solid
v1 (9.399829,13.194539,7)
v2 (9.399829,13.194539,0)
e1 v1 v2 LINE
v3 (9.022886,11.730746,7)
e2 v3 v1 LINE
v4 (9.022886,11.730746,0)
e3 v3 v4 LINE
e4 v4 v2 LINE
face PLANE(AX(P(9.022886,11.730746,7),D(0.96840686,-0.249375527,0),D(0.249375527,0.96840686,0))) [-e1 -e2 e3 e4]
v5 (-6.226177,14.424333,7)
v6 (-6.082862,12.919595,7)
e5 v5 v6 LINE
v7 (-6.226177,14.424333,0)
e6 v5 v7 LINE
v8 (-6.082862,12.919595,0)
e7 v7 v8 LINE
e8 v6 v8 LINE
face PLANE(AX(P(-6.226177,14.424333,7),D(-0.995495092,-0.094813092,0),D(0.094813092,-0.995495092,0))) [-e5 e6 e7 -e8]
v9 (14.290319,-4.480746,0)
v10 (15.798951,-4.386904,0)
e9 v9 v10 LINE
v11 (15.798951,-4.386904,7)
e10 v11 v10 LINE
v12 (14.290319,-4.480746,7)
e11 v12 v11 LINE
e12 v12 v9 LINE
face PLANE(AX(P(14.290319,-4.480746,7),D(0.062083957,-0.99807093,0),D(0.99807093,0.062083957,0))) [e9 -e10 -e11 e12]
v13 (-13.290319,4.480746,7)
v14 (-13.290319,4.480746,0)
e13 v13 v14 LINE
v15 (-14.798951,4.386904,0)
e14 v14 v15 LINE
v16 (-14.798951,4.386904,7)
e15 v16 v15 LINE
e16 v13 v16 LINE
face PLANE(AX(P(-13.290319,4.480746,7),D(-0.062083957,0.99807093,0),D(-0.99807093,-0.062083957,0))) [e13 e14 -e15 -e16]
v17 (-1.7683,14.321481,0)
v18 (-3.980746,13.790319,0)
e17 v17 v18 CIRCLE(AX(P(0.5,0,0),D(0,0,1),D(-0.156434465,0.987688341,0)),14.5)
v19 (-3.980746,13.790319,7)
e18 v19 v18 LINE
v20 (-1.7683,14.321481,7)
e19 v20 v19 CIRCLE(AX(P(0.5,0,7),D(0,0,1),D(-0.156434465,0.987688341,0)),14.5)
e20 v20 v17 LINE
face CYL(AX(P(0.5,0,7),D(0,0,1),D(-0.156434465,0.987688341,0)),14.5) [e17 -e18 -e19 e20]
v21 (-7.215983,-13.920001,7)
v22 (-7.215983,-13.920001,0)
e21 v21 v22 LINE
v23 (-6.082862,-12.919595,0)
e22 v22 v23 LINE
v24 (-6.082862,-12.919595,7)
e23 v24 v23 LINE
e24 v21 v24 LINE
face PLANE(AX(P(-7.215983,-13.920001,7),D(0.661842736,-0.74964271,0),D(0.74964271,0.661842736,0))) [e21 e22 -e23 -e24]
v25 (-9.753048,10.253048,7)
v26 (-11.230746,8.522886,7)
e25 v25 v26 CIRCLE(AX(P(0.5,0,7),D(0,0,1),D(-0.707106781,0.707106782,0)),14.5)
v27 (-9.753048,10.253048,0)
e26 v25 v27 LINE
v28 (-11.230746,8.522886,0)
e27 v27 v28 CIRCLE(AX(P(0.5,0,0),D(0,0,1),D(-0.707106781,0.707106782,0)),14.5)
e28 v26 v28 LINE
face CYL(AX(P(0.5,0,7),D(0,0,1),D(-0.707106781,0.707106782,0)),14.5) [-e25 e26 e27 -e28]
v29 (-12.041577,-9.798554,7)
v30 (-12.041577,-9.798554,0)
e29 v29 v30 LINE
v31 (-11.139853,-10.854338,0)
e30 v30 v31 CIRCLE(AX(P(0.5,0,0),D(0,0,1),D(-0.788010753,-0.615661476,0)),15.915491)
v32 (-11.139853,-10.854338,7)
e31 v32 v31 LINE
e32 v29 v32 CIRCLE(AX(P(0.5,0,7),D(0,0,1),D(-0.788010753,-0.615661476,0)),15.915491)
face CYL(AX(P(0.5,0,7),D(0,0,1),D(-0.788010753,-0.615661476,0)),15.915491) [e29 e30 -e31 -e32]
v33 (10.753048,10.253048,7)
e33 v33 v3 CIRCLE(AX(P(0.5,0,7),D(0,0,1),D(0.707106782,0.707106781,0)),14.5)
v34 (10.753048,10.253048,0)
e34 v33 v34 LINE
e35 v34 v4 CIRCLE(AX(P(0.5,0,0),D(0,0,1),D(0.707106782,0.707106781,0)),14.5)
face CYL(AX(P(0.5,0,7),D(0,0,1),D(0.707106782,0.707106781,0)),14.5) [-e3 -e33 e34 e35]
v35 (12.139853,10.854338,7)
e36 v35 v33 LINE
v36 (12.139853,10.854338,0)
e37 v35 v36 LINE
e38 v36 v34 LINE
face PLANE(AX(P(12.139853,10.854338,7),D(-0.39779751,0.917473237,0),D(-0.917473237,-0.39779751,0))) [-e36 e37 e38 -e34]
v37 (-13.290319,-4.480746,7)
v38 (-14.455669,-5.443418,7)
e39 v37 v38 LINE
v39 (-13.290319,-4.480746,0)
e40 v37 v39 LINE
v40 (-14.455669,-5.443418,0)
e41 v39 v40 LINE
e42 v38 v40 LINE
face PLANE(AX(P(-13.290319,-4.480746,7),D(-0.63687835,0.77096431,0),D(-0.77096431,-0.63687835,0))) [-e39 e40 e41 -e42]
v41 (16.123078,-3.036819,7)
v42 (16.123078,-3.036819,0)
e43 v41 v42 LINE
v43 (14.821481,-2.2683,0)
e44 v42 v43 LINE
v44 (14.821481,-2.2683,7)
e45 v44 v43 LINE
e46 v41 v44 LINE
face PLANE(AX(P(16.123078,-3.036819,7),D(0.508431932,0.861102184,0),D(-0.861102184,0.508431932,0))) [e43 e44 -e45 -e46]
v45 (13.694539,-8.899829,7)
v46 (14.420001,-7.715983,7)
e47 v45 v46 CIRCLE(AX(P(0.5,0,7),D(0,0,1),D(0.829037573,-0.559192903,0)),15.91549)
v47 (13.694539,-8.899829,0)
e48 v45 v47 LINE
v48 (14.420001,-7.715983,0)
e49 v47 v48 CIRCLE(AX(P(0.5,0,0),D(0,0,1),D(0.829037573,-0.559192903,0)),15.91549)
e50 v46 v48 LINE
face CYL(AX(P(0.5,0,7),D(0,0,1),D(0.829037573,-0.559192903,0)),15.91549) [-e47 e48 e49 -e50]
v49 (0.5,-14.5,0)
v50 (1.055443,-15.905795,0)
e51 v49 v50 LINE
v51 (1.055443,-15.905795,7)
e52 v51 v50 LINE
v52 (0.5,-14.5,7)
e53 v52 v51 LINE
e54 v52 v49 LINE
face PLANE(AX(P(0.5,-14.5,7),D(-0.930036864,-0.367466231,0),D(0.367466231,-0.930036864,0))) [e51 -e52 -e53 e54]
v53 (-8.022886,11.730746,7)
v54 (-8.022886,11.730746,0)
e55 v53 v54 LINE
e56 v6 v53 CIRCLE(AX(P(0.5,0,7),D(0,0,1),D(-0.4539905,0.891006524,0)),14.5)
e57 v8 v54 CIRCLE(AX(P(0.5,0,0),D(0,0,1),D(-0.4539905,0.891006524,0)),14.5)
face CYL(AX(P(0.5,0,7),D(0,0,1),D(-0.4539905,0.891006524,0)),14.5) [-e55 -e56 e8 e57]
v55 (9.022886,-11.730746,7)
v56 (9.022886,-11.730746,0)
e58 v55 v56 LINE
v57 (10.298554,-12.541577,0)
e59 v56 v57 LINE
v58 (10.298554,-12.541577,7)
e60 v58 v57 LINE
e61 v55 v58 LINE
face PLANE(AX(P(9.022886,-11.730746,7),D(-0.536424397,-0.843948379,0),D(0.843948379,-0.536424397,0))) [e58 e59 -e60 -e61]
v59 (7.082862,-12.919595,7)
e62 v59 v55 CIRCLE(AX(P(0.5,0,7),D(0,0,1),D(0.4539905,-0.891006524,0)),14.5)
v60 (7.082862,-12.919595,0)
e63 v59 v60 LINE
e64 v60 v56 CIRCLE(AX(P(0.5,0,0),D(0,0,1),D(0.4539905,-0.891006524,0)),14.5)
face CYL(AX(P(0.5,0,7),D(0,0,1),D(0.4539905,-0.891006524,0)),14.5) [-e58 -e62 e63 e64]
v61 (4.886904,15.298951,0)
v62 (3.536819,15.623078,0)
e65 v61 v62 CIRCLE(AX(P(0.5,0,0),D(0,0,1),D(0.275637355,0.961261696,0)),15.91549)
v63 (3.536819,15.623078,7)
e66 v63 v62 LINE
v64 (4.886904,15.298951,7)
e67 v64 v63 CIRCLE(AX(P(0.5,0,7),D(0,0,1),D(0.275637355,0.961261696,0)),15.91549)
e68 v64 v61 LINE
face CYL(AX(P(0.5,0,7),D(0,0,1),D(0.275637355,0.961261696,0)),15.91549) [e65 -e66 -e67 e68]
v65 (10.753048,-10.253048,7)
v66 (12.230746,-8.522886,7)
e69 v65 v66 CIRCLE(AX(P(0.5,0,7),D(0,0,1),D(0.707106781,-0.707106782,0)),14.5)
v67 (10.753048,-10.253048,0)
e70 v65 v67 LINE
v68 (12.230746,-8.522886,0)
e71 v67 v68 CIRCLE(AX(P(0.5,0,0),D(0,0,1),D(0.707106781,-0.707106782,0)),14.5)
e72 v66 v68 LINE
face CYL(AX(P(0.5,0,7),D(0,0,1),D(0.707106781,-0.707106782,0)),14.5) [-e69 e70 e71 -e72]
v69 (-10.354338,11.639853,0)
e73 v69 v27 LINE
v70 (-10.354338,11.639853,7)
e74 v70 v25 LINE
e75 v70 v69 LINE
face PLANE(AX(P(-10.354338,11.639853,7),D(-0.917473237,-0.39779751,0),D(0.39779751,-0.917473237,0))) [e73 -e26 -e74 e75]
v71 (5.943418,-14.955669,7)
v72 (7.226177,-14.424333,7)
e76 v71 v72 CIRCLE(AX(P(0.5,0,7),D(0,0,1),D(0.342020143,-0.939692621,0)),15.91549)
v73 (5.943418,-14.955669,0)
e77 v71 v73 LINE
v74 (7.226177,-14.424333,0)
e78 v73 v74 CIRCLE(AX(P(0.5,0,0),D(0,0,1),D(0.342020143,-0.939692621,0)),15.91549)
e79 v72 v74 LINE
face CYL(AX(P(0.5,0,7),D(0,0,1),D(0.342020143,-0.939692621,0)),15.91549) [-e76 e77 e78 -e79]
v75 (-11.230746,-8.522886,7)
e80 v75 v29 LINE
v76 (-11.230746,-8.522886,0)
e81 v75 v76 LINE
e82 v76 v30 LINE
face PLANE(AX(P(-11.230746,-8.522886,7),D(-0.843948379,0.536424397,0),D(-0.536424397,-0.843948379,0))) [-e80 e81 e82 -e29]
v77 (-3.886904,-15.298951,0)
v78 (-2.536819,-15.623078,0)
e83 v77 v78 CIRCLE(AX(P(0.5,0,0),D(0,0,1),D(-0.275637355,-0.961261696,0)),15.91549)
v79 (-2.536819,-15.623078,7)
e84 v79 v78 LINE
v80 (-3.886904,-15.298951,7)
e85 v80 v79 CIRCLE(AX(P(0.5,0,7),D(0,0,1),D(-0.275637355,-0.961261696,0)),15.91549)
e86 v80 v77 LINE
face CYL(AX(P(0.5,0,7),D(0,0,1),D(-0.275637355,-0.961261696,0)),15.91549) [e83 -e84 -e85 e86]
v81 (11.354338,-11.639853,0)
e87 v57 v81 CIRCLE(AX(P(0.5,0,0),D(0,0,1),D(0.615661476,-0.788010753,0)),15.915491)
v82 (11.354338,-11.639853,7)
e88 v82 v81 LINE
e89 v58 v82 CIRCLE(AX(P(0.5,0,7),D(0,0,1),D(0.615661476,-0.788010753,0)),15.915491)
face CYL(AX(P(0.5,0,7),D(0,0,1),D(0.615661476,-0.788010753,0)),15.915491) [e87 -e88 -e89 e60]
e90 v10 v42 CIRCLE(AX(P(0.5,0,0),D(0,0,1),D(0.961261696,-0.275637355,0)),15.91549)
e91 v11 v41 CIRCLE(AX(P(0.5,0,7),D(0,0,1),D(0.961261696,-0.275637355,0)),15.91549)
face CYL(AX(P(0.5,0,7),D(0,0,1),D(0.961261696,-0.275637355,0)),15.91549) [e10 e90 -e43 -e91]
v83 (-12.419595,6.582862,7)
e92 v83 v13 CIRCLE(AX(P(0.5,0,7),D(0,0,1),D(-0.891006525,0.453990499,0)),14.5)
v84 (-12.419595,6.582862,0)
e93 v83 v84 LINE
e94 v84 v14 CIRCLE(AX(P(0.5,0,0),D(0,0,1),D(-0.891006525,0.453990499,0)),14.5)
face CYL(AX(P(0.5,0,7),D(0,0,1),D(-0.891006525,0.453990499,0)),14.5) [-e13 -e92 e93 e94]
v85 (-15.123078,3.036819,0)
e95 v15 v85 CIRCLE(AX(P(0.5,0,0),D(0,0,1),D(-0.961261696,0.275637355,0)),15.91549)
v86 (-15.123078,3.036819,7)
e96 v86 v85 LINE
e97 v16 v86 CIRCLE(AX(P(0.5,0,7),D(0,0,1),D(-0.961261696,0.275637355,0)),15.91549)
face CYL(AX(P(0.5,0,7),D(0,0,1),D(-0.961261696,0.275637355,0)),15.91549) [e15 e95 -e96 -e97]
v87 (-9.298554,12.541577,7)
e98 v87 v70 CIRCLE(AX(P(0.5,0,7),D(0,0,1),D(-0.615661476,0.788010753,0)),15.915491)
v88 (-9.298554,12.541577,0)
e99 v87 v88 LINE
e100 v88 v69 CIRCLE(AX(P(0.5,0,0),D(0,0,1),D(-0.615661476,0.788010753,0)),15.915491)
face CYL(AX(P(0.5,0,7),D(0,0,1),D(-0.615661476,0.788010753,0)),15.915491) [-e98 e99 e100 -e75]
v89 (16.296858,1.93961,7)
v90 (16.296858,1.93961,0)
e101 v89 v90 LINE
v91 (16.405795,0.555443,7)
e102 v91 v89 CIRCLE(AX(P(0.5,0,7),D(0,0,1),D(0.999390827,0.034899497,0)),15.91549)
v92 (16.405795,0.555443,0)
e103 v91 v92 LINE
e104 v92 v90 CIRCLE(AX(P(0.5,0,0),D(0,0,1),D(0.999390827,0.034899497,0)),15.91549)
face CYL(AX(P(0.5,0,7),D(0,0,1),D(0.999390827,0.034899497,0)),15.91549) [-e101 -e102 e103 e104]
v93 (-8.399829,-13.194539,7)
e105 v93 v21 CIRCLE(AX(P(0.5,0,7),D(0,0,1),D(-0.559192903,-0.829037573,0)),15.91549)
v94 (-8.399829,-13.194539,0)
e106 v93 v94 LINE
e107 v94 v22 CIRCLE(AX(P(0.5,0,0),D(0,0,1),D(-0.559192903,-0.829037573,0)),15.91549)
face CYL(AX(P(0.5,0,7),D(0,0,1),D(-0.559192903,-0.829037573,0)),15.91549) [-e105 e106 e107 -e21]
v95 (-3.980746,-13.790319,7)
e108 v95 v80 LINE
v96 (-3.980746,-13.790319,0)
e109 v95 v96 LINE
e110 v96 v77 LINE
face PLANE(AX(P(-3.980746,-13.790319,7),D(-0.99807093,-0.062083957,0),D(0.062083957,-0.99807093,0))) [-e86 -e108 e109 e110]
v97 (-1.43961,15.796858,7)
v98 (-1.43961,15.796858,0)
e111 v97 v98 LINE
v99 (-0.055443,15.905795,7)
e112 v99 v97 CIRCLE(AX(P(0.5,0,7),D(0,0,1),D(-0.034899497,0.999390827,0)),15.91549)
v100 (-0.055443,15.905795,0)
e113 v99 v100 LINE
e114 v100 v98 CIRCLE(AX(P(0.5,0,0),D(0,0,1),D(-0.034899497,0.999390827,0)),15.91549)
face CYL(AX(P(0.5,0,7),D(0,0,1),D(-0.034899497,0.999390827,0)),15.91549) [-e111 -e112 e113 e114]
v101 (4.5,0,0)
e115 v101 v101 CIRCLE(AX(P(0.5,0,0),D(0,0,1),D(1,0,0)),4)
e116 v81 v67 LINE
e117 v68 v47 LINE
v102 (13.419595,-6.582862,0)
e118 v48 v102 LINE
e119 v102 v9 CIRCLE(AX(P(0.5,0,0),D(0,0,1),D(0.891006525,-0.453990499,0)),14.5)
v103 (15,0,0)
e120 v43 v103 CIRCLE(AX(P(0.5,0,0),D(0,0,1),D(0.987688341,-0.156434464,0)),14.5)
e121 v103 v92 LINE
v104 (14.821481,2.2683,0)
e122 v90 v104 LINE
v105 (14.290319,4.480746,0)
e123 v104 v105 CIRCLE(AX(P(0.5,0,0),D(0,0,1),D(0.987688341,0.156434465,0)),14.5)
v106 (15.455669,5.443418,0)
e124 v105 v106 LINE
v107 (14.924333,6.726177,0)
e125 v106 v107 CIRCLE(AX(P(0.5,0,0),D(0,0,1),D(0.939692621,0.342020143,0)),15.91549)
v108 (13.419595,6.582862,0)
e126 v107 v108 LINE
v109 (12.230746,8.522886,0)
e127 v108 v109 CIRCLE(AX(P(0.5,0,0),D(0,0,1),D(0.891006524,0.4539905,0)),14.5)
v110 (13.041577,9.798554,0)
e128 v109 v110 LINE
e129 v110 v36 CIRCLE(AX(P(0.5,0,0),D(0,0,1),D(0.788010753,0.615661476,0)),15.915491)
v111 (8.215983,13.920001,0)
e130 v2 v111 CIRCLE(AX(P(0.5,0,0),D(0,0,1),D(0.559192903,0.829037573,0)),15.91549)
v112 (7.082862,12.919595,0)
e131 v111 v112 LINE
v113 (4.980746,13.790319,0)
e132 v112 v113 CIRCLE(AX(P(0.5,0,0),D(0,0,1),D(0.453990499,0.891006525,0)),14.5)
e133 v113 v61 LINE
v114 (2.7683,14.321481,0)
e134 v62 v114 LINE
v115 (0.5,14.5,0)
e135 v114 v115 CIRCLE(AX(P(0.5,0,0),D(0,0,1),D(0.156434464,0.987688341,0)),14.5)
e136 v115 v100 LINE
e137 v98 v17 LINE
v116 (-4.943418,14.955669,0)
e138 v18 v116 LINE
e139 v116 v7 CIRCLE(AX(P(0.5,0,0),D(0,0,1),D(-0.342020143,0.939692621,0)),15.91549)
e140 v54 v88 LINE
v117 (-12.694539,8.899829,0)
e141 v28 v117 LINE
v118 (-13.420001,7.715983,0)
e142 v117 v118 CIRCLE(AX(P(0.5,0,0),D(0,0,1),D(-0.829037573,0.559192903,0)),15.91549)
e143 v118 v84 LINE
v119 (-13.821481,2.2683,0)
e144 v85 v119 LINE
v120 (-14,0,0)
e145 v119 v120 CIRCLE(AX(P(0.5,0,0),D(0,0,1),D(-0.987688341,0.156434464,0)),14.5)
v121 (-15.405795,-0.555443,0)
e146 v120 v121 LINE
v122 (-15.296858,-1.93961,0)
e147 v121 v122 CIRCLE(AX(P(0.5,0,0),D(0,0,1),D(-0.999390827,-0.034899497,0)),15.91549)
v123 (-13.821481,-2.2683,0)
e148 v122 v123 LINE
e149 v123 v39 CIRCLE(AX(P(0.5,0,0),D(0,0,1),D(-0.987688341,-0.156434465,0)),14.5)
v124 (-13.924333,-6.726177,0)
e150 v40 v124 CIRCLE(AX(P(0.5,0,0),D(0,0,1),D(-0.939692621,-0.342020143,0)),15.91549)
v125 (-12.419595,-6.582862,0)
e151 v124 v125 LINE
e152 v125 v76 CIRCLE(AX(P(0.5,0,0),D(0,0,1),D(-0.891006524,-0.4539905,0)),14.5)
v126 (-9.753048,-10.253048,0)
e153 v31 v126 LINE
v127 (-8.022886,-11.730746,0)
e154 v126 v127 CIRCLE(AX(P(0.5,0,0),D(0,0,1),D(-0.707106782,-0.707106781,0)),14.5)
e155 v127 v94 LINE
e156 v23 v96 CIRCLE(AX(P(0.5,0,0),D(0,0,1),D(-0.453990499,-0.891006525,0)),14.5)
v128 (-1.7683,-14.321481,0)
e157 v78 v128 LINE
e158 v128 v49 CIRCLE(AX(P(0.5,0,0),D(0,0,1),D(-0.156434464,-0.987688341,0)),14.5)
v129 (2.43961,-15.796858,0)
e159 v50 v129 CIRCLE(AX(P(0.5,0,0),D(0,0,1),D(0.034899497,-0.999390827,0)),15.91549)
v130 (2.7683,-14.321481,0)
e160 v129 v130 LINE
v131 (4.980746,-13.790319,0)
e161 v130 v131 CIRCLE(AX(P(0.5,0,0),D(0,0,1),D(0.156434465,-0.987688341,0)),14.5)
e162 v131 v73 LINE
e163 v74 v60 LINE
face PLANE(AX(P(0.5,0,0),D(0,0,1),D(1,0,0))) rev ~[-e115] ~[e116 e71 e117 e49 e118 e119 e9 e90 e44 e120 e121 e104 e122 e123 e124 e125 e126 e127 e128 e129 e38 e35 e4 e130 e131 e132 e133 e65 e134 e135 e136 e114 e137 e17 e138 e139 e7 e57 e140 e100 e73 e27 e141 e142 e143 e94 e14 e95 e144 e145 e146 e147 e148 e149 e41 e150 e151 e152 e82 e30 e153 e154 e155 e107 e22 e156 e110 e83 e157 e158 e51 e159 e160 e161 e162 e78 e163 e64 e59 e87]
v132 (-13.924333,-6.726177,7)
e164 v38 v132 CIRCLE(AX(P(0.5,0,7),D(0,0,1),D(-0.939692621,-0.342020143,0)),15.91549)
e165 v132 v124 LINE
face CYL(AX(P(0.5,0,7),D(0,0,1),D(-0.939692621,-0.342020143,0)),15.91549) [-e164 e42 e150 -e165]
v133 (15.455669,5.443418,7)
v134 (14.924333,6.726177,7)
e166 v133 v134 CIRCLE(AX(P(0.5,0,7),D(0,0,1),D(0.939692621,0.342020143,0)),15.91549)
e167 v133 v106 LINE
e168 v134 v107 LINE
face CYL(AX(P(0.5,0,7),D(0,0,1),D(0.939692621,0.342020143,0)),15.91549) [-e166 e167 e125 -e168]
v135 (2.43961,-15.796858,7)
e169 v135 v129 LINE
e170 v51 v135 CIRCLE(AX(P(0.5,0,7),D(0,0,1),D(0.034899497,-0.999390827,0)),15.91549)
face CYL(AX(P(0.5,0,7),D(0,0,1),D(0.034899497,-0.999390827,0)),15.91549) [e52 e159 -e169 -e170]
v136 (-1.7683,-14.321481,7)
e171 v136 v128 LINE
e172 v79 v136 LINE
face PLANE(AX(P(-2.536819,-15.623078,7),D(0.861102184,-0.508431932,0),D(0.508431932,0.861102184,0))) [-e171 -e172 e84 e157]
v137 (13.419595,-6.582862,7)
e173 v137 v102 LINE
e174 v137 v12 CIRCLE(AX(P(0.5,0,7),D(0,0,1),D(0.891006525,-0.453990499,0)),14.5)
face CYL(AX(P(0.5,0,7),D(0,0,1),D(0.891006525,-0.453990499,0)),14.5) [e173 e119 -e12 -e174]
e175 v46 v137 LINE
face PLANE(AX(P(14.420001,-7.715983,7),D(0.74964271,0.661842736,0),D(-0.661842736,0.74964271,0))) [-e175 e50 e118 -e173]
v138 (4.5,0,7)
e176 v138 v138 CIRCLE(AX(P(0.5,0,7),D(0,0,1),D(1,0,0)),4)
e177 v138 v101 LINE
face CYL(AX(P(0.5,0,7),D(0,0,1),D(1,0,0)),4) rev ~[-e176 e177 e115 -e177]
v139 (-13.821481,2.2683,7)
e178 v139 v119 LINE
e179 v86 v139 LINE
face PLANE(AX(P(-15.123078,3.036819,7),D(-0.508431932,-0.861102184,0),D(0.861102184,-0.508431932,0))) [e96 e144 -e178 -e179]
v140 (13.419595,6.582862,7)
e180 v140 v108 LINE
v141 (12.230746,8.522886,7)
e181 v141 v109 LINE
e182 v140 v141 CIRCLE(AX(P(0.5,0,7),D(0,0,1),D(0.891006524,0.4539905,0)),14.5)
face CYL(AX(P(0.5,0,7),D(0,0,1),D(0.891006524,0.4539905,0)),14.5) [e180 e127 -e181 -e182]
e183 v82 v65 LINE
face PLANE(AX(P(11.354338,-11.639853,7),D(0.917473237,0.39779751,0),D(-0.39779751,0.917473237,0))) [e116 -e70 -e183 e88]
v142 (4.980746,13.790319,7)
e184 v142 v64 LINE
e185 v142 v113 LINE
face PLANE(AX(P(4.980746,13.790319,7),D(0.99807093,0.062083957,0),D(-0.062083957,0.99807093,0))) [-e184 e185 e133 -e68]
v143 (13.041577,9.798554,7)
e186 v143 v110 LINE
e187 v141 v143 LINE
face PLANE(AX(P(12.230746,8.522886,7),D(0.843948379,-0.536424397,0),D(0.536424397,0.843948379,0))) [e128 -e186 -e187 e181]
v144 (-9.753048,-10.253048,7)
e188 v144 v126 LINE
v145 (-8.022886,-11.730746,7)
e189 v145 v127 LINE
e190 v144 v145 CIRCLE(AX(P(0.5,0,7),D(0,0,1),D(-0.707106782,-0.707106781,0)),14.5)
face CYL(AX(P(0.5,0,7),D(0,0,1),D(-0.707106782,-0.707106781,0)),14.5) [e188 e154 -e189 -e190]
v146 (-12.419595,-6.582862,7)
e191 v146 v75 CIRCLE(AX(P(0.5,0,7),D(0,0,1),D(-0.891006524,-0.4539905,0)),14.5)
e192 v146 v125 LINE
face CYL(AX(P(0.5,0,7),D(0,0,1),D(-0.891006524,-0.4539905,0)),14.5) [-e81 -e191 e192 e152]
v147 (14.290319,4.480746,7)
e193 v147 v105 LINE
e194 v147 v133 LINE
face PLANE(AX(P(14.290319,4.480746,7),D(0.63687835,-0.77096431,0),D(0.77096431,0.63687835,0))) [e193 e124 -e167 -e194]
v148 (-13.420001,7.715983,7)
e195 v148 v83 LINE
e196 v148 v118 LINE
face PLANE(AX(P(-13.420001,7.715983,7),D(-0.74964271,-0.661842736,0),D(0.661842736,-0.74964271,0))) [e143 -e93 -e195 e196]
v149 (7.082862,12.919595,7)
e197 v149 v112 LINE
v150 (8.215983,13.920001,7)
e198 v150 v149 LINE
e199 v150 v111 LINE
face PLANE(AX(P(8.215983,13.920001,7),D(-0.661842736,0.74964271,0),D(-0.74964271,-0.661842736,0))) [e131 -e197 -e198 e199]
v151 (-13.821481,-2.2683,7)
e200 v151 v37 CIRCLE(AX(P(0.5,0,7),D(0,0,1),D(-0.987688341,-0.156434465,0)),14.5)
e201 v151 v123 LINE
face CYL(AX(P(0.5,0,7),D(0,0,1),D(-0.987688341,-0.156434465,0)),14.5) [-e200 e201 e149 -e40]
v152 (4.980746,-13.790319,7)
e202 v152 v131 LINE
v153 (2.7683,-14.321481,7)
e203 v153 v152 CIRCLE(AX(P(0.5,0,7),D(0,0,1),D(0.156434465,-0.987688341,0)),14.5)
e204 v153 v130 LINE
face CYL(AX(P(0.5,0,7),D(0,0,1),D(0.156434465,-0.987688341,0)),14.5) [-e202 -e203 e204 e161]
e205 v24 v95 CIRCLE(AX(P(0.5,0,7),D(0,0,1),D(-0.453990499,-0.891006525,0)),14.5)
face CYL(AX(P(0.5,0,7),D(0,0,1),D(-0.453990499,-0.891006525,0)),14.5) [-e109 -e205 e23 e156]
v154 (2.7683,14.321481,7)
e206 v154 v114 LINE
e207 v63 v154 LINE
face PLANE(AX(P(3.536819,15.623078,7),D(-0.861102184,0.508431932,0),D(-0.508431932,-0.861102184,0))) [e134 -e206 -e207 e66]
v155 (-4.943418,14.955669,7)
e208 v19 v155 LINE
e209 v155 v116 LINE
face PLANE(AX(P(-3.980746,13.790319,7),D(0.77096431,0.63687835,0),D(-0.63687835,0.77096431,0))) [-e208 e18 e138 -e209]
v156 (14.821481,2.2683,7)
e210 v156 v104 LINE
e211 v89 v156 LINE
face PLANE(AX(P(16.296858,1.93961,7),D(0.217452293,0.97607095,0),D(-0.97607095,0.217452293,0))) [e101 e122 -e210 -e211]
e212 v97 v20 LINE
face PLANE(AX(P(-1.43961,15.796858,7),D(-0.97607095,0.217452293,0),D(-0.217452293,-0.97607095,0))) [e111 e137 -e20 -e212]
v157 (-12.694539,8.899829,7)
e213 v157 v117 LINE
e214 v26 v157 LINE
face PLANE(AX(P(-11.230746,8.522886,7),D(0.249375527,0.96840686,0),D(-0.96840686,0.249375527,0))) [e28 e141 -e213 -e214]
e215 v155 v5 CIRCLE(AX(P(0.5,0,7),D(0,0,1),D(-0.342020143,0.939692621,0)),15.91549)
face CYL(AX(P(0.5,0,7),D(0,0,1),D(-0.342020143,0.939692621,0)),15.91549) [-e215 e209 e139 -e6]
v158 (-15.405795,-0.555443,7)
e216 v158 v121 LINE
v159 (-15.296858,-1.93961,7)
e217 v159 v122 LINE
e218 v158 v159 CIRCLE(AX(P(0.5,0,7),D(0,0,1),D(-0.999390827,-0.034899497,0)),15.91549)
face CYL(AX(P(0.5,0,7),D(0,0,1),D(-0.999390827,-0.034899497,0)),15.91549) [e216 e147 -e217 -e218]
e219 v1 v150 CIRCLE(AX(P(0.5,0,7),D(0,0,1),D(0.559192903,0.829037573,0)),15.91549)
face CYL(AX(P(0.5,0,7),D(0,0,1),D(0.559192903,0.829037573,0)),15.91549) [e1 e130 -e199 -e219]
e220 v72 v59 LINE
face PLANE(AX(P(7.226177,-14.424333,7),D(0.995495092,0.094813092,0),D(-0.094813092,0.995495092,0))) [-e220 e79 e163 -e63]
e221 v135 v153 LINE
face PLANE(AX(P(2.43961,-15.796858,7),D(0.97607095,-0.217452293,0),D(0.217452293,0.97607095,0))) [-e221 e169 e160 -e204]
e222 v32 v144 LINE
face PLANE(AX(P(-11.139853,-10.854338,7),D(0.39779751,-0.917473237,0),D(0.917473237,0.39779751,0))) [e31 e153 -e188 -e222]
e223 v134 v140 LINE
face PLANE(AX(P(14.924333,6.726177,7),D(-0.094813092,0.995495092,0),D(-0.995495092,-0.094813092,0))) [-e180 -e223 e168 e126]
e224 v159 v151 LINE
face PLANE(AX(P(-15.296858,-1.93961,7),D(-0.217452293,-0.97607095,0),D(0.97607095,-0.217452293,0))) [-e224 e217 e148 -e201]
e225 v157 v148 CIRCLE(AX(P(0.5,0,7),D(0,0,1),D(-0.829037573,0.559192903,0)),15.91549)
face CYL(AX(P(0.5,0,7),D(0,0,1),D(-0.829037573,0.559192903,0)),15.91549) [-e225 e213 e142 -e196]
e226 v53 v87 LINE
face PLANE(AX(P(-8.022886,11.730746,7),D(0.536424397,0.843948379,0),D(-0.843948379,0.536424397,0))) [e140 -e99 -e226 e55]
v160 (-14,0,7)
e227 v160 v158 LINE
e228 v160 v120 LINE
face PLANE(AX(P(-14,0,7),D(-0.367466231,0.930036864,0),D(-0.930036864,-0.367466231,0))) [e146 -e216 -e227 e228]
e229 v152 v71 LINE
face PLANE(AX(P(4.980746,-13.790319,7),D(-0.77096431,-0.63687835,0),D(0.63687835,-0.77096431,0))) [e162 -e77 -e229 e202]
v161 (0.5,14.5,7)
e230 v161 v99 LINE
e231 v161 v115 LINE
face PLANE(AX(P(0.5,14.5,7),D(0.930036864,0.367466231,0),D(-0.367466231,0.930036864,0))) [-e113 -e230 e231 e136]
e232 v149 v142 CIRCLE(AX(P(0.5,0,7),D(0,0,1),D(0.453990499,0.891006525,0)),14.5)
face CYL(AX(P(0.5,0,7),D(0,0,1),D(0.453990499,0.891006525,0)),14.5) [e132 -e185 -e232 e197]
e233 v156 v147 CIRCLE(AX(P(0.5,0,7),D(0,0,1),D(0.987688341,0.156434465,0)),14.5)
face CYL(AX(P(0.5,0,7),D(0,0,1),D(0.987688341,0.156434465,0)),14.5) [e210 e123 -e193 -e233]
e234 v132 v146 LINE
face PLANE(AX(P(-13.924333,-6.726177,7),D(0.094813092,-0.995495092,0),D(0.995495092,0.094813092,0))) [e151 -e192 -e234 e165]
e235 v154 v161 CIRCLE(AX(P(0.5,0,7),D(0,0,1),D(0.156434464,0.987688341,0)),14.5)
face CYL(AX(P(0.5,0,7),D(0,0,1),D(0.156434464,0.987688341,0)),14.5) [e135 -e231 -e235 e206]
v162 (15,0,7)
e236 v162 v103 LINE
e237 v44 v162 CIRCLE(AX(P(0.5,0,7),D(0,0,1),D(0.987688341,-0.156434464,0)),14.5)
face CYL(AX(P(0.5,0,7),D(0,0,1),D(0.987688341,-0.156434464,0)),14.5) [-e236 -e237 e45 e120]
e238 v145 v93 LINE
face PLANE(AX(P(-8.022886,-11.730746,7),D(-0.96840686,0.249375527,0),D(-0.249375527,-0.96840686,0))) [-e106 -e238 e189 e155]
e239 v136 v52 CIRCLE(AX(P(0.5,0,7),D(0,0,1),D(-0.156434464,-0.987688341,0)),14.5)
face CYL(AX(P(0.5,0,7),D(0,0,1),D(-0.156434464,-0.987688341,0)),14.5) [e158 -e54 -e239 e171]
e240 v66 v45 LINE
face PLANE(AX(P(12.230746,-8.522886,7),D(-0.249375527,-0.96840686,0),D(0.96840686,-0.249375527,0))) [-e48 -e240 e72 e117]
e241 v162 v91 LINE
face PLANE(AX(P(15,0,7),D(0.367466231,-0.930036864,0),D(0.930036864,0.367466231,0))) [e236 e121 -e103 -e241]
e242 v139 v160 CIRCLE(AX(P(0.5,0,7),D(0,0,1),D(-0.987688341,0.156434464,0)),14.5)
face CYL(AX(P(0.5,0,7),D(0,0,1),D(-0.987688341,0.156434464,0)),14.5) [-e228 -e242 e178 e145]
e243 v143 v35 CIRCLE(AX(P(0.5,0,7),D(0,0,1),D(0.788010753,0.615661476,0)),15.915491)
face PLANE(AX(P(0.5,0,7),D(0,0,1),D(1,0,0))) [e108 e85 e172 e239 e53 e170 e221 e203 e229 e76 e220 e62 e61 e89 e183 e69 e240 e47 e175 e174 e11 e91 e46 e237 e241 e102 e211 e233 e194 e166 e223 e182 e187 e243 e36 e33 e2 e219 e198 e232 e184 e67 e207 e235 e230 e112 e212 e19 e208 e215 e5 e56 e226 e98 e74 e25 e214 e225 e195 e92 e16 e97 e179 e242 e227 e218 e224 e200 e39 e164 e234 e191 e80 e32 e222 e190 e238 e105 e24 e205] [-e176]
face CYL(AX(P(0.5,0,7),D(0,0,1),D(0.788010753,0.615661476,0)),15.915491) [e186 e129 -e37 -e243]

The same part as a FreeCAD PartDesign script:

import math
import FreeCAD as App
import Part
import Sketcher

V = App.Vector

doc = App.newDocument("Part")
body = doc.addObject("PartDesign::Body", "Body")

# Sketch on XY plane
sketch1 = doc.addObject("Sketcher::SketchObject", "Sketch")
body.addObject(sketch1)
sketch1.AttachmentSupport = (doc.XY_Plane, [""])
sketch1.MapMode = "FlatFace"
sketch1.AttachmentOffset = App.Placement(V(0, 0, 7), App.Rotation())
sketch1.addGeometry([
    Part.LineSegment(V(16.3, 1.9, 0), V(14.8, 2.3, 0)),  # 0
    Part.ArcOfCircle(Part.Circle(V(0.5, 0, 0), V(0, 0, 1), 14.5), math.radians(9), math.radians(18)),  # 1
    Part.LineSegment(V(14.3, 4.5, 0), V(15.5, 5.4, 0)),  # 2
    Part.ArcOfCircle(Part.Circle(V(0.5, 0, 0), V(0, 0, 1), 15.9), math.radians(20), math.radians(25)),  # 3
    Part.LineSegment(V(14.9, 6.7, 0), V(13.4, 6.6, 0)),  # 4
    Part.ArcOfCircle(Part.Circle(V(0.5, 0, 0), V(0, 0, 1), 14.5), math.radians(27), math.radians(36)),  # 5
    Part.LineSegment(V(12.2, 8.5, 0), V(13, 9.8, 0)),  # 6
    Part.ArcOfCircle(Part.Circle(V(0.5, 0, 0), V(0, 0, 1), 15.9), math.radians(38), math.radians(43)),  # 7
    Part.LineSegment(V(12.1, 10.9, 0), V(10.8, 10.3, 0)),  # 8
    Part.ArcOfCircle(Part.Circle(V(0.5, 0, 0), V(0, 0, 1), 14.5), math.radians(45), math.radians(54)),  # 9
    Part.LineSegment(V(9, 11.7, 0), V(9.4, 13.2, 0)),  # 10
    Part.ArcOfCircle(Part.Circle(V(0.5, 0, 0), V(0, 0, 1), 15.9), math.radians(56), math.radians(61)),  # 11
    Part.LineSegment(V(8.2, 13.9, 0), V(7.1, 12.9, 0)),  # 12
    Part.ArcOfCircle(Part.Circle(V(0.5, 0, 0), V(0, 0, 1), 14.5), math.radians(63), math.radians(72)),  # 13
    Part.LineSegment(V(5, 13.8, 0), V(4.9, 15.3, 0)),  # 14
    Part.ArcOfCircle(Part.Circle(V(0.5, 0, 0), V(0, 0, 1), 15.9), math.radians(74), math.radians(79)),  # 15
    Part.LineSegment(V(3.5, 15.6, 0), V(2.8, 14.3, 0)),  # 16
    Part.ArcOfCircle(Part.Circle(V(0.5, 0, 0), V(0, 0, 1), 14.5), math.radians(81), math.radians(90)),  # 17
    Part.LineSegment(V(0.5, 14.5, 0), V(-0.1, 15.9, 0)),  # 18
    Part.ArcOfCircle(Part.Circle(V(0.5, 0, 0), V(0, 0, 1), 15.9), math.radians(92), math.radians(97)),  # 19
    Part.LineSegment(V(-1.4, 15.8, 0), V(-1.8, 14.3, 0)),  # 20
    Part.ArcOfCircle(Part.Circle(V(0.5, 0, 0), V(0, 0, 1), 14.5), math.radians(99), math.radians(108)),  # 21
    Part.LineSegment(V(-4, 13.8, 0), V(-4.9, 15, 0)),  # 22
    Part.ArcOfCircle(Part.Circle(V(0.5, 0, 0), V(0, 0, 1), 15.9), math.radians(110), math.radians(115)),  # 23
    Part.LineSegment(V(-6.2, 14.4, 0), V(-6.1, 12.9, 0)),  # 24
    Part.ArcOfCircle(Part.Circle(V(0.5, 0, 0), V(0, 0, 1), 14.5), math.radians(117), math.radians(126)),  # 25
    Part.LineSegment(V(-8, 11.7, 0), V(-9.3, 12.5, 0)),  # 26
    Part.ArcOfCircle(Part.Circle(V(0.5, 0, 0), V(0, 0, 1), 15.9), math.radians(128), math.radians(133)),  # 27
    Part.LineSegment(V(-10.4, 11.6, 0), V(-9.8, 10.3, 0)),  # 28
    Part.ArcOfCircle(Part.Circle(V(0.5, 0, 0), V(0, 0, 1), 14.5), math.radians(135), math.radians(144)),  # 29
    Part.LineSegment(V(-11.2, 8.5, 0), V(-12.7, 8.9, 0)),  # 30
    Part.ArcOfCircle(Part.Circle(V(0.5, 0, 0), V(0, 0, 1), 15.9), math.radians(146), math.radians(151)),  # 31
    Part.LineSegment(V(-13.4, 7.7, 0), V(-12.4, 6.6, 0)),  # 32
    Part.ArcOfCircle(Part.Circle(V(0.5, 0, 0), V(0, 0, 1), 14.5), math.radians(153), math.radians(162)),  # 33
    Part.LineSegment(V(-13.3, 4.5, 0), V(-14.8, 4.4, 0)),  # 34
    Part.ArcOfCircle(Part.Circle(V(0.5, 0, 0), V(0, 0, 1), 15.9), math.radians(164), math.radians(169)),  # 35
    Part.LineSegment(V(-15.1, 3, 0), V(-13.8, 2.3, 0)),  # 36
    Part.ArcOfCircle(Part.Circle(V(0.5, 0, 0), V(0, 0, 1), 14.5), math.radians(171), math.radians(180)),  # 37
    Part.LineSegment(V(-14, 0, 0), V(-15.4, -0.6, 0)),  # 38
    Part.ArcOfCircle(Part.Circle(V(0.5, 0, 0), V(0, 0, 1), 15.9), math.radians(-178), math.radians(-173)),  # 39
    Part.LineSegment(V(-15.3, -1.9, 0), V(-13.8, -2.3, 0)),  # 40
    Part.ArcOfCircle(Part.Circle(V(0.5, 0, 0), V(0, 0, 1), 14.5), math.radians(-171), math.radians(-162)),  # 41
    Part.LineSegment(V(-13.3, -4.5, 0), V(-14.5, -5.4, 0)),  # 42
    Part.ArcOfCircle(Part.Circle(V(0.5, 0, 0), V(0, 0, 1), 15.9), math.radians(-160), math.radians(-155)),  # 43
    Part.LineSegment(V(-13.9, -6.7, 0), V(-12.4, -6.6, 0)),  # 44
    Part.ArcOfCircle(Part.Circle(V(0.5, 0, 0), V(0, 0, 1), 14.5), math.radians(-153), math.radians(-144)),  # 45
    Part.LineSegment(V(-11.2, -8.5, 0), V(-12, -9.8, 0)),  # 46
    Part.ArcOfCircle(Part.Circle(V(0.5, 0, 0), V(0, 0, 1), 15.9), math.radians(-142), math.radians(-137)),  # 47
    Part.LineSegment(V(-11.1, -10.9, 0), V(-9.8, -10.3, 0)),  # 48
    Part.ArcOfCircle(Part.Circle(V(0.5, 0, 0), V(0, 0, 1), 14.5), math.radians(-135), math.radians(-126)),  # 49
    Part.LineSegment(V(-8, -11.7, 0), V(-8.4, -13.2, 0)),  # 50
    Part.ArcOfCircle(Part.Circle(V(0.5, 0, 0), V(0, 0, 1), 15.9), math.radians(-124), math.radians(-119)),  # 51
    Part.LineSegment(V(-7.2, -13.9, 0), V(-6.1, -12.9, 0)),  # 52
    Part.ArcOfCircle(Part.Circle(V(0.5, 0, 0), V(0, 0, 1), 14.5), math.radians(-117), math.radians(-108)),  # 53
    Part.LineSegment(V(-4, -13.8, 0), V(-3.9, -15.3, 0)),  # 54
    Part.ArcOfCircle(Part.Circle(V(0.5, 0, 0), V(0, 0, 1), 15.9), math.radians(-106), math.radians(-101)),  # 55
    Part.LineSegment(V(-2.5, -15.6, 0), V(-1.8, -14.3, 0)),  # 56
    Part.ArcOfCircle(Part.Circle(V(0.5, 0, 0), V(0, 0, 1), 14.5), math.radians(-99), math.radians(-90)),  # 57
    Part.LineSegment(V(0.5, -14.5, 0), V(1.1, -15.9, 0)),  # 58
    Part.ArcOfCircle(Part.Circle(V(0.5, 0, 0), V(0, 0, 1), 15.9), math.radians(-88), math.radians(-83)),  # 59
    Part.LineSegment(V(2.4, -15.8, 0), V(2.8, -14.3, 0)),  # 60
    Part.ArcOfCircle(Part.Circle(V(0.5, 0, 0), V(0, 0, 1), 14.5), math.radians(-81), math.radians(-72)),  # 61
    Part.LineSegment(V(5, -13.8, 0), V(5.9, -15, 0)),  # 62
    Part.ArcOfCircle(Part.Circle(V(0.5, 0, 0), V(0, 0, 1), 15.9), math.radians(-70), math.radians(-65)),  # 63
    Part.LineSegment(V(7.2, -14.4, 0), V(7.1, -12.9, 0)),  # 64
    Part.ArcOfCircle(Part.Circle(V(0.5, 0, 0), V(0, 0, 1), 14.5), math.radians(-63), math.radians(-54)),  # 65
    Part.LineSegment(V(9, -11.7, 0), V(10.3, -12.5, 0)),  # 66
    Part.ArcOfCircle(Part.Circle(V(0.5, 0, 0), V(0, 0, 1), 15.9), math.radians(-52), math.radians(-47)),  # 67
    Part.LineSegment(V(11.4, -11.6, 0), V(10.8, -10.3, 0)),  # 68
    Part.ArcOfCircle(Part.Circle(V(0.5, 0, 0), V(0, 0, 1), 14.5), math.radians(-45), math.radians(-36)),  # 69
    Part.LineSegment(V(12.2, -8.5, 0), V(13.7, -8.9, 0)),  # 70
    Part.ArcOfCircle(Part.Circle(V(0.5, 0, 0), V(0, 0, 1), 15.9), math.radians(-34), math.radians(-29)),  # 71
    Part.LineSegment(V(14.4, -7.7, 0), V(13.4, -6.6, 0)),  # 72
    Part.ArcOfCircle(Part.Circle(V(0.5, 0, 0), V(0, 0, 1), 14.5), math.radians(-27), math.radians(-18)),  # 73
    Part.LineSegment(V(14.3, -4.5, 0), V(15.8, -4.4, 0)),  # 74
    Part.ArcOfCircle(Part.Circle(V(0.5, 0, 0), V(0, 0, 1), 15.9), math.radians(-16), math.radians(-11)),  # 75
    Part.LineSegment(V(16.1, -3, 0), V(14.8, -2.3, 0)),  # 76
    Part.ArcOfCircle(Part.Circle(V(0.5, 0, 0), V(0, 0, 1), 14.5), math.radians(-9), math.radians(0)),  # 77
    Part.LineSegment(V(15, 0, 0), V(16.4, 0.6, 0)),  # 78
    Part.ArcOfCircle(Part.Circle(V(0.5, 0, 0), V(0, 0, 1), 15.9), math.radians(2), math.radians(7)),  # 79
    Part.Circle(V(0.5, 0, 0), V(0, 0, 1), 4),  # 80
], False)
sketch1.addConstraint([
    Sketcher.Constraint("Coincident", 0, 2, 1, 1),
    Sketcher.Constraint("Coincident", 1, 2, 2, 1),
    Sketcher.Constraint("Coincident", 2, 2, 3, 1),
    Sketcher.Constraint("Coincident", 3, 2, 4, 1),
    Sketcher.Constraint("Coincident", 4, 2, 5, 1),
    Sketcher.Constraint("Coincident", 5, 2, 6, 1),
    Sketcher.Constraint("Coincident", 6, 2, 7, 1),
    Sketcher.Constraint("Coincident", 7, 2, 8, 1),
    Sketcher.Constraint("Coincident", 8, 2, 9, 1),
    Sketcher.Constraint("Coincident", 9, 2, 10, 1),
    Sketcher.Constraint("Coincident", 10, 2, 11, 1),
    Sketcher.Constraint("Coincident", 11, 2, 12, 1),
    Sketcher.Constraint("Coincident", 12, 2, 13, 1),
    Sketcher.Constraint("Coincident", 13, 2, 14, 1),
    Sketcher.Constraint("Coincident", 14, 2, 15, 1),
    Sketcher.Constraint("Coincident", 15, 2, 16, 1),
    Sketcher.Constraint("Coincident", 16, 2, 17, 1),
    Sketcher.Constraint("Coincident", 17, 2, 18, 1),
    Sketcher.Constraint("Coincident", 18, 2, 19, 1),
    Sketcher.Constraint("Coincident", 19, 2, 20, 1),
    Sketcher.Constraint("Coincident", 20, 2, 21, 1),
    Sketcher.Constraint("Coincident", 21, 2, 22, 1),
    Sketcher.Constraint("Coincident", 22, 2, 23, 1),
    Sketcher.Constraint("Coincident", 23, 2, 24, 1),
    Sketcher.Constraint("Coincident", 24, 2, 25, 1),
    Sketcher.Constraint("Coincident", 25, 2, 26, 1),
    Sketcher.Constraint("Coincident", 26, 2, 27, 1),
    Sketcher.Constraint("Coincident", 27, 2, 28, 1),
    Sketcher.Constraint("Coincident", 28, 2, 29, 1),
    Sketcher.Constraint("Coincident", 29, 2, 30, 1),
    Sketcher.Constraint("Coincident", 30, 2, 31, 1),
    Sketcher.Constraint("Coincident", 31, 2, 32, 1),
    Sketcher.Constraint("Coincident", 32, 2, 33, 1),
    Sketcher.Constraint("Coincident", 33, 2, 34, 1),
    Sketcher.Constraint("Coincident", 34, 2, 35, 1),
    Sketcher.Constraint("Coincident", 35, 2, 36, 1),
    Sketcher.Constraint("Coincident", 36, 2, 37, 1),
    Sketcher.Constraint("Coincident", 37, 2, 38, 1),
    Sketcher.Constraint("Coincident", 38, 2, 39, 1),
    Sketcher.Constraint("Coincident", 39, 2, 40, 1),
    Sketcher.Constraint("Coincident", 40, 2, 41, 1),
    Sketcher.Constraint("Coincident", 41, 2, 42, 1),
    Sketcher.Constraint("Coincident", 42, 2, 43, 1),
    Sketcher.Constraint("Coincident", 43, 2, 44, 1),
    Sketcher.Constraint("Coincident", 44, 2, 45, 1),
    Sketcher.Constraint("Coincident", 45, 2, 46, 1),
    Sketcher.Constraint("Coincident", 46, 2, 47, 1),
    Sketcher.Constraint("Coincident", 47, 2, 48, 1),
    Sketcher.Constraint("Coincident", 48, 2, 49, 1),
    Sketcher.Constraint("Coincident", 49, 2, 50, 1),
    Sketcher.Constraint("Coincident", 50, 2, 51, 1),
    Sketcher.Constraint("Coincident", 51, 2, 52, 1),
    Sketcher.Constraint("Coincident", 52, 2, 53, 1),
    Sketcher.Constraint("Coincident", 53, 2, 54, 1),
    Sketcher.Constraint("Coincident", 54, 2, 55, 1),
    Sketcher.Constraint("Coincident", 55, 2, 56, 1),
    Sketcher.Constraint("Coincident", 56, 2, 57, 1),
    Sketcher.Constraint("Coincident", 57, 2, 58, 1),
    Sketcher.Constraint("Coincident", 58, 2, 59, 1),
    Sketcher.Constraint("Coincident", 59, 2, 60, 1),
    Sketcher.Constraint("Coincident", 60, 2, 61, 1),
    Sketcher.Constraint("Coincident", 61, 2, 62, 1),
    Sketcher.Constraint("Coincident", 62, 2, 63, 1),
    Sketcher.Constraint("Coincident", 63, 2, 64, 1),
    Sketcher.Constraint("Coincident", 64, 2, 65, 1),
    Sketcher.Constraint("Coincident", 65, 2, 66, 1),
    Sketcher.Constraint("Coincident", 66, 2, 67, 1),
    Sketcher.Constraint("Coincident", 67, 2, 68, 1),
    Sketcher.Constraint("Coincident", 68, 2, 69, 1),
    Sketcher.Constraint("Coincident", 69, 2, 70, 1),
    Sketcher.Constraint("Coincident", 70, 2, 71, 1),
    Sketcher.Constraint("Coincident", 71, 2, 72, 1),
    Sketcher.Constraint("Coincident", 72, 2, 73, 1),
    Sketcher.Constraint("Coincident", 73, 2, 74, 1),
    Sketcher.Constraint("Coincident", 74, 2, 75, 1),
    Sketcher.Constraint("Coincident", 75, 2, 76, 1),
    Sketcher.Constraint("Coincident", 76, 2, 77, 1),
    Sketcher.Constraint("Coincident", 77, 2, 78, 1),
    Sketcher.Constraint("Coincident", 78, 2, 79, 1),
    Sketcher.Constraint("Coincident", 79, 2, 0, 1),
    Sketcher.Constraint("Coincident", 3, 3, 1, 3),
    Sketcher.Constraint("Coincident", 5, 3, 1, 3),
    Sketcher.Constraint("Coincident", 7, 3, 1, 3),
    Sketcher.Constraint("Coincident", 9, 3, 1, 3),
    Sketcher.Constraint("Coincident", 11, 3, 1, 3),
    Sketcher.Constraint("Coincident", 13, 3, 1, 3),
    Sketcher.Constraint("Coincident", 15, 3, 1, 3),
    Sketcher.Constraint("Coincident", 17, 3, 1, 3),
    Sketcher.Constraint("Coincident", 19, 3, 1, 3),
    Sketcher.Constraint("Coincident", 21, 3, 1, 3),
    Sketcher.Constraint("Coincident", 23, 3, 1, 3),
    Sketcher.Constraint("Coincident", 25, 3, 1, 3),
    Sketcher.Constraint("Coincident", 27, 3, 1, 3),
    Sketcher.Constraint("Coincident", 29, 3, 1, 3),
    Sketcher.Constraint("Coincident", 31, 3, 1, 3),
    Sketcher.Constraint("Coincident", 33, 3, 1, 3),
    Sketcher.Constraint("Coincident", 35, 3, 1, 3),
    Sketcher.Constraint("Coincident", 37, 3, 1, 3),
    Sketcher.Constraint("Coincident", 39, 3, 1, 3),
    Sketcher.Constraint("Coincident", 41, 3, 1, 3),
    Sketcher.Constraint("Coincident", 43, 3, 1, 3),
    Sketcher.Constraint("Coincident", 45, 3, 1, 3),
    Sketcher.Constraint("Coincident", 47, 3, 1, 3),
    Sketcher.Constraint("Coincident", 49, 3, 1, 3),
    Sketcher.Constraint("Coincident", 51, 3, 1, 3),
    Sketcher.Constraint("Coincident", 53, 3, 1, 3),
    Sketcher.Constraint("Coincident", 55, 3, 1, 3),
    Sketcher.Constraint("Coincident", 57, 3, 1, 3),
    Sketcher.Constraint("Coincident", 59, 3, 1, 3),
    Sketcher.Constraint("Coincident", 61, 3, 1, 3),
    Sketcher.Constraint("Coincident", 63, 3, 1, 3),
    Sketcher.Constraint("Coincident", 65, 3, 1, 3),
    Sketcher.Constraint("Coincident", 67, 3, 1, 3),
    Sketcher.Constraint("Coincident", 69, 3, 1, 3),
    Sketcher.Constraint("Coincident", 71, 3, 1, 3),
    Sketcher.Constraint("Coincident", 73, 3, 1, 3),
    Sketcher.Constraint("Coincident", 75, 3, 1, 3),
    Sketcher.Constraint("Coincident", 77, 3, 1, 3),
    Sketcher.Constraint("Coincident", 79, 3, 1, 3),
    Sketcher.Constraint("Coincident", 80, 3, 1, 3),
    Sketcher.Constraint("Equal", 1, 5),
    Sketcher.Constraint("Equal", 3, 7),
    Sketcher.Constraint("Equal", 5, 9),
    Sketcher.Constraint("Equal", 7, 11),
    Sketcher.Constraint("Equal", 9, 13),
    Sketcher.Constraint("Equal", 11, 15),
    Sketcher.Constraint("Equal", 13, 17),
    Sketcher.Constraint("Equal", 15, 19),
    Sketcher.Constraint("Equal", 17, 21),
    Sketcher.Constraint("Equal", 19, 23),
    Sketcher.Constraint("Equal", 21, 25),
    Sketcher.Constraint("Equal", 23, 27),
    Sketcher.Constraint("Equal", 25, 29),
    Sketcher.Constraint("Equal", 27, 31),
    Sketcher.Constraint("Equal", 29, 33),
    Sketcher.Constraint("Equal", 31, 35),
    Sketcher.Constraint("Equal", 33, 37),
    Sketcher.Constraint("Equal", 35, 39),
    Sketcher.Constraint("Equal", 37, 41),
    Sketcher.Constraint("Equal", 39, 43),
    Sketcher.Constraint("Equal", 41, 45),
    Sketcher.Constraint("Equal", 43, 47),
    Sketcher.Constraint("Equal", 45, 49),
    Sketcher.Constraint("Equal", 47, 51),
    Sketcher.Constraint("Equal", 49, 53),
    Sketcher.Constraint("Equal", 51, 55),
    Sketcher.Constraint("Equal", 53, 57),
    Sketcher.Constraint("Equal", 55, 59),
    Sketcher.Constraint("Equal", 57, 61),
    Sketcher.Constraint("Equal", 59, 63),
    Sketcher.Constraint("Equal", 61, 65),
    Sketcher.Constraint("Equal", 63, 67),
    Sketcher.Constraint("Equal", 65, 69),
    Sketcher.Constraint("Equal", 67, 71),
    Sketcher.Constraint("Equal", 69, 73),
    Sketcher.Constraint("Equal", 71, 75),
    Sketcher.Constraint("Equal", 73, 77),
    Sketcher.Constraint("Equal", 75, 79),
    Sketcher.Constraint("Symmetric", 36, 2, 40, 2, -1),
    Sketcher.Constraint("PointOnObject", 37, 2, -1),
    Sketcher.Constraint("PointOnObject", 77, 2, -1),
    Sketcher.Constraint("Perpendicular", 0, 20),
    Sketcher.Constraint("Perpendicular", 2, 22),
    Sketcher.Constraint("Perpendicular", 4, 24),
    Sketcher.Constraint("Perpendicular", 6, 26),
    Sketcher.Constraint("Perpendicular", 8, 28),
    Sketcher.Constraint("Perpendicular", 10, 30),
    Sketcher.Constraint("Perpendicular", 12, 32),
    Sketcher.Constraint("Perpendicular", 14, 34),
    Sketcher.Constraint("Perpendicular", 16, 36),
    Sketcher.Constraint("Perpendicular", 18, 38),
    Sketcher.Constraint("Perpendicular", 20, 40),
    Sketcher.Constraint("Perpendicular", 22, 42),
    Sketcher.Constraint("Perpendicular", 24, 44),
    Sketcher.Constraint("Perpendicular", 26, 46),
    Sketcher.Constraint("Perpendicular", 28, 48),
    Sketcher.Constraint("Perpendicular", 30, 50),
    Sketcher.Constraint("Perpendicular", 32, 52),
    Sketcher.Constraint("Perpendicular", 34, 54),
    Sketcher.Constraint("Perpendicular", 36, 56),
    Sketcher.Constraint("Perpendicular", 38, 58),
    Sketcher.Constraint("Perpendicular", 40, 60),
    Sketcher.Constraint("Perpendicular", 42, 62),
    Sketcher.Constraint("Perpendicular", 44, 64),
    Sketcher.Constraint("Perpendicular", 46, 66),
    Sketcher.Constraint("Perpendicular", 48, 68),
    Sketcher.Constraint("Perpendicular", 50, 70),
    Sketcher.Constraint("Perpendicular", 52, 72),
    Sketcher.Constraint("Perpendicular", 54, 74),
    Sketcher.Constraint("Perpendicular", 56, 76),
    Sketcher.Constraint("Perpendicular", 58, 78),
    Sketcher.Constraint("Horizontal", 16, 2, 20, 2),
    Sketcher.Constraint("Horizontal", 13, 2, 21, 2),
    Sketcher.Constraint("Horizontal", 12, 2, 24, 2),
    Sketcher.Constraint("Horizontal", 9, 2, 25, 2),
    Sketcher.Constraint("Horizontal", 8, 2, 28, 2),
    Sketcher.Constraint("Horizontal", 5, 2, 29, 2),
    Sketcher.Constraint("Horizontal", 4, 2, 32, 2),
    Sketcher.Constraint("Horizontal", 1, 2, 33, 2),
    Sketcher.Constraint("Horizontal", 0, 2, 36, 2),
    Sketcher.Constraint("Horizontal", 56, 2, 60, 2),
    Sketcher.Constraint("Horizontal", 53, 2, 61, 2),
    Sketcher.Constraint("Horizontal", 52, 2, 64, 2),
    Sketcher.Constraint("Horizontal", 49, 2, 65, 2),
    Sketcher.Constraint("Horizontal", 48, 2, 68, 2),
    Sketcher.Constraint("Horizontal", 45, 2, 69, 2),
    Sketcher.Constraint("Horizontal", 44, 2, 72, 2),
    Sketcher.Constraint("Horizontal", 41, 2, 73, 2),
    Sketcher.Constraint("Horizontal", 40, 2, 76, 2),
    Sketcher.Constraint("Vertical", 80, 3, 17, 2),
    Sketcher.Constraint("Vertical", 33, 2, 41, 2),
    Sketcher.Constraint("Vertical", 32, 2, 44, 2),
    Sketcher.Constraint("Vertical", 29, 2, 45, 2),
    Sketcher.Constraint("Vertical", 28, 2, 48, 2),
    Sketcher.Constraint("Vertical", 25, 2, 49, 2),
    Sketcher.Constraint("Vertical", 24, 2, 52, 2),
    Sketcher.Constraint("Vertical", 21, 2, 53, 2),
    Sketcher.Constraint("Vertical", 20, 2, 56, 2),
    Sketcher.Constraint("Vertical", 17, 2, 57, 2),
    Sketcher.Constraint("Equal", 0, 2),
    Sketcher.Constraint("Equal", 2, 4),
    Sketcher.Constraint("Equal", 4, 6),
    Sketcher.Constraint("Equal", 6, 8),
    Sketcher.Constraint("Equal", 8, 10),
    Sketcher.Constraint("Equal", 10, 12),
    Sketcher.Constraint("Equal", 12, 14),
    Sketcher.Constraint("Equal", 14, 16),
    Sketcher.Constraint("Equal", 16, 18),
    Sketcher.Constraint("Equal", 18, 20),
    Sketcher.Constraint("Equal", 20, 22),
    Sketcher.Constraint("Equal", 22, 24),
    Sketcher.Constraint("Equal", 24, 26),
    Sketcher.Constraint("Equal", 26, 28),
    Sketcher.Constraint("Diameter", 80, 8.0),
    Sketcher.Constraint("Radius", 1, 14.5),
    Sketcher.Constraint("DistanceX", 37, 2, -1, 1, 14.0),
    Sketcher.Constraint("DistanceY", -1, 1, 11, 2, 13.920001),
    Sketcher.Constraint("Radius", 3, 15.91549),
    Sketcher.Constraint("DistanceY", -1, 1, 0, 2, 2.2683),
    Sketcher.Constraint("DistanceX", -1, 1, 1, 2, 14.290319),
    Sketcher.Constraint("DistanceX", -1, 1, 2, 2, 15.455669),
    Sketcher.Constraint("DistanceX", -1, 1, 10, 2, 9.399829),
])
pad1 = doc.addObject("PartDesign::Pad", "Pad")
body.addObject(pad1)
pad1.Profile = sketch1
pad1.Length = 7
pad1.Reversed = True

doc.recompute()
